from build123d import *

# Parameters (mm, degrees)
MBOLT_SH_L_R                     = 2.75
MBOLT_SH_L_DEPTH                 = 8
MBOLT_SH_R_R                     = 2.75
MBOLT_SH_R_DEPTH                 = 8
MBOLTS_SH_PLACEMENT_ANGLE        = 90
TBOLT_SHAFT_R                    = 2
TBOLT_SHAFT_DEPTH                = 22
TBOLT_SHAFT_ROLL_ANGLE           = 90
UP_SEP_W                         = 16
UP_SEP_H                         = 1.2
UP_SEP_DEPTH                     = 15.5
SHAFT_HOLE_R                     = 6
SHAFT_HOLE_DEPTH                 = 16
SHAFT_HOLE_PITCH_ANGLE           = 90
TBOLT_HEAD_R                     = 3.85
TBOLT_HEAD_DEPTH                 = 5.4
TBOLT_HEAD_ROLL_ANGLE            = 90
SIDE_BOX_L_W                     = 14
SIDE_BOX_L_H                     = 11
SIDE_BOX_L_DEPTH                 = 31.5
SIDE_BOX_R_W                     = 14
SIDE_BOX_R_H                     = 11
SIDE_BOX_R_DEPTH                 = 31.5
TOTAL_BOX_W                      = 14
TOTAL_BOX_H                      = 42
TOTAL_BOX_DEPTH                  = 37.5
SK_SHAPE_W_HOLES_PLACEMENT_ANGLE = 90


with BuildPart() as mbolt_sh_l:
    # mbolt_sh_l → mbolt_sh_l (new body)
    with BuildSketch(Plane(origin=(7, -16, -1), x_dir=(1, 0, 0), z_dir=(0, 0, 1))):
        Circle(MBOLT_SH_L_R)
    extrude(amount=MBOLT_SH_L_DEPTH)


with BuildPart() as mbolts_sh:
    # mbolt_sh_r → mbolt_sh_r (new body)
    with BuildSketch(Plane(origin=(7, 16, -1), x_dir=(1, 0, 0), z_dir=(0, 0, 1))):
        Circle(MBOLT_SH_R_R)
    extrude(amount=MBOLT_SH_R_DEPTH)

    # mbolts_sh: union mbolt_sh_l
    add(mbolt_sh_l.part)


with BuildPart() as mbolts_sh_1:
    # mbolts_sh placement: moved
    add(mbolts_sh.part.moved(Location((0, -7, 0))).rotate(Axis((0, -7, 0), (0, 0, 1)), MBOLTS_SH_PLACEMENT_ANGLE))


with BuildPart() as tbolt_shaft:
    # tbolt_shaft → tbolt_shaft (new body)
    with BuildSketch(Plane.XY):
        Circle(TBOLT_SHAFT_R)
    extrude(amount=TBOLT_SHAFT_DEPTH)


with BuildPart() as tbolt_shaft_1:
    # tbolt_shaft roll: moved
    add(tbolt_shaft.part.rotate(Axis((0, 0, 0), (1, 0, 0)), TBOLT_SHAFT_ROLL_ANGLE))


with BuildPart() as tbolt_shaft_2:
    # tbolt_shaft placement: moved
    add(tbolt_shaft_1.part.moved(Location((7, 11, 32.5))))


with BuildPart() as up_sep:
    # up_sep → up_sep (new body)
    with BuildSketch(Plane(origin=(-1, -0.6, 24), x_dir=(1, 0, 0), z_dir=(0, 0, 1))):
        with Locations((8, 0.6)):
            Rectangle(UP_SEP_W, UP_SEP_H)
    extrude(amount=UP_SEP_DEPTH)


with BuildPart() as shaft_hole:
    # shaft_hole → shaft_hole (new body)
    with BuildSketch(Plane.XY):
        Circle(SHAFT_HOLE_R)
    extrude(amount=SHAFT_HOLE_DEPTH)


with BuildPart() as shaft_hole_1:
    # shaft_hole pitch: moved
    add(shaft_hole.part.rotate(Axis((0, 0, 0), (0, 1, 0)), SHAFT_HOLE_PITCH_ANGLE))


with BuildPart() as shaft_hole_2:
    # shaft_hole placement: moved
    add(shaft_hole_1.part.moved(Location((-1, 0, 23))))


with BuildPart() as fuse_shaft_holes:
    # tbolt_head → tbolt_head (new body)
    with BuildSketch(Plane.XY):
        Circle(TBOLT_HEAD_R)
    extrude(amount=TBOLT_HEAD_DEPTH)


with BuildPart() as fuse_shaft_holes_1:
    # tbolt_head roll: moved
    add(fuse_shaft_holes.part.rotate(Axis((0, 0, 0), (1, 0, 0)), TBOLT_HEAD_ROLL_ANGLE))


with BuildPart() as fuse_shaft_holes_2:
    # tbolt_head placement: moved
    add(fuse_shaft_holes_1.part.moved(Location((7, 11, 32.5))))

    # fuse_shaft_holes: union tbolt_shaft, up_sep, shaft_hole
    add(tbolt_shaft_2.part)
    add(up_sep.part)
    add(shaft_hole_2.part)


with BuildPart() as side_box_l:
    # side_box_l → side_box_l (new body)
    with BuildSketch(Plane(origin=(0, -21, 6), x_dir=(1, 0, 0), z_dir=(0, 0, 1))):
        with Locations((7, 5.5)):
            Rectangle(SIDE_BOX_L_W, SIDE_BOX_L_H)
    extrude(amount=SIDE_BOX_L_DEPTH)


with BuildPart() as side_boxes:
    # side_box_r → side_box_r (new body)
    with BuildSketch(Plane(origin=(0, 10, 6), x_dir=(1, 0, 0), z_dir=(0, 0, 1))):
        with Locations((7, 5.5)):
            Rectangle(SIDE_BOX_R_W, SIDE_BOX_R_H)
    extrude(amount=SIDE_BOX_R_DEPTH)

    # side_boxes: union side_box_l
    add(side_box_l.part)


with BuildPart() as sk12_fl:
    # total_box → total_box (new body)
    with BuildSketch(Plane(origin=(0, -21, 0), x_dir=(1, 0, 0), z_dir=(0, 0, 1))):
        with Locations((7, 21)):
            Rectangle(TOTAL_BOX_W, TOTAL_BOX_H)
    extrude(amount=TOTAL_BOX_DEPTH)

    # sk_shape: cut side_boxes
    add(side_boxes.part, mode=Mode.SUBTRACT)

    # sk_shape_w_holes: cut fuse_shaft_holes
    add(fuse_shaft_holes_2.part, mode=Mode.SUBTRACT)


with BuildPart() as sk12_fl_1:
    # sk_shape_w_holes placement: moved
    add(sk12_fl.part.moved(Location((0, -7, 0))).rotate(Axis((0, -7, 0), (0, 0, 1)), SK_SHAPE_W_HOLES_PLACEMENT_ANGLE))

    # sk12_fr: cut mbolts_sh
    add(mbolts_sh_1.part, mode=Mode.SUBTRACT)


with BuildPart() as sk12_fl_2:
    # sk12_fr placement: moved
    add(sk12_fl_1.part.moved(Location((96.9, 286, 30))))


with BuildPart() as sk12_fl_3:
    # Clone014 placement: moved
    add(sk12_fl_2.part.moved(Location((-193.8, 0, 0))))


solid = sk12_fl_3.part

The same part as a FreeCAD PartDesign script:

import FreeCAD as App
import Part
import Sketcher

V = App.Vector


def add_polygon(sketch, points):
    """Adds a closed chain of lines whose ends are joined by coincident constraints."""
    first, n = sketch.GeometryCount, len(points)
    for a, b in zip(points, points[1:] + points[:1]):
        sketch.addGeometry(Part.LineSegment(App.Vector(*a, 0), App.Vector(*b, 0)), False)
    for i in range(n):
        sketch.addConstraint(Sketcher.Constraint("Coincident", first + i, 2, first + (i + 1) % n, 1))

doc = App.newDocument("Part")
body = doc.addObject("PartDesign::Body", "Body")

sketch1 = body.newObject("Sketcher::SketchObject", "Sketch")
sketch1.AttachmentSupport = (doc.getObject("XY_Plane"), [""])
sketch1.MapMode = "FlatFace"
sketch1.AttachmentOffset = App.Placement(V(0, 0, -1), App.Rotation())
sketch1.addGeometry(Part.Circle(V(7, -16, 0), V(0, 0, 1), 2.8), False)
sketch1.addConstraint([
    Sketcher.Constraint("Diameter", 0, 5.5),
    Sketcher.Constraint("DistanceX", -1, 1, 0, 3, 7.0),
    Sketcher.Constraint("DistanceY", 0, 3, -1, 1, 16.0),
])
pad1 = body.newObject("PartDesign::Pad", "Pad")
pad1.Profile = sketch1
pad1.Length = 8
body2 = doc.addObject("PartDesign::Body", "Body001")
body2.AllowCompound = True

sketch2 = body2.newObject("Sketcher::SketchObject", "Sketch001")
sketch2.AttachmentSupport = (doc.getObject("XY_Plane001"), [""])
sketch2.MapMode = "FlatFace"
sketch2.AttachmentOffset = App.Placement(V(0, 0, -1), App.Rotation())
sketch2.addGeometry(Part.Circle(V(7, 16, 0), V(0, 0, 1), 2.8), False)
sketch2.addConstraint([
    Sketcher.Constraint("Diameter", 0, 5.5),
    Sketcher.Constraint("DistanceX", -1, 1, 0, 3, 7.0),
    Sketcher.Constraint("DistanceY", -1, 1, 0, 3, 16.0),
])
pad2 = body2.newObject("PartDesign::Pad", "Pad001")
pad2.Profile = sketch2
pad2.Length = 8
doc.recompute()

boolean = body2.newObject("PartDesign::Boolean", "Boolean")
boolean.Type = "Fuse"
boolean.addObjects([body])
body3 = doc.addObject("PartDesign::Body", "Body002")
body3.AllowCompound = True
doc.recompute()

body2.Placement = App.Placement(V(0, -7, 0), App.Rotation(V(0, 0, 1), 90))
boolean2 = body3.newObject("PartDesign::Boolean", "Boolean001")
boolean2.Type = "Fuse"
boolean2.addObjects([body2])
body4 = doc.addObject("PartDesign::Body", "Body003")

sketch3 = body4.newObject("Sketcher::SketchObject", "Sketch002")
sketch3.AttachmentSupport = (doc.getObject("XY_Plane003"), [""])
sketch3.MapMode = "FlatFace"
sketch3.addGeometry(Part.Circle(V(0, 0, 0), V(0, 0, 1), 2), False)
sketch3.addConstraint([
    Sketcher.Constraint("Coincident", 0, 3, -1, 1),
    Sketcher.Constraint("Diameter", 0, 4.0),
])
pad3 = body4.newObject("PartDesign::Pad", "Pad002")
pad3.Profile = sketch3
pad3.Length = 22
body5 = doc.addObject("PartDesign::Body", "Body004")
doc.recompute()

body4.Placement = App.Placement(V(0, 0, 0), App.Rotation(V(1, 0, 0), 90))
boolean3 = body5.newObject("PartDesign::Boolean", "Boolean002")
boolean3.Type = "Fuse"
boolean3.addObjects([body4])
body6 = doc.addObject("PartDesign::Body", "Body005")
doc.recompute()

body5.Placement = App.Placement(V(7, 11, 32.5), App.Rotation(V(0, 0, 1), 0))
boolean4 = body6.newObject("PartDesign::Boolean", "Boolean003")
boolean4.Type = "Fuse"
boolean4.addObjects([body5])
body7 = doc.addObject("PartDesign::Body", "Body006")

sketch4 = body7.newObject("Sketcher::SketchObject", "Sketch003")
sketch4.AttachmentSupport = (doc.getObject("XY_Plane006"), [""])
sketch4.MapMode = "FlatFace"
sketch4.AttachmentOffset = App.Placement(V(0, 0, 24), App.Rotation())
add_polygon(sketch4, [(-1, 0.6), (-1, -0.6), (15, -0.6), (15, 0.6)])
sketch4.addConstraint([
    Sketcher.Constraint("Vertical", 0),
    Sketcher.Constraint("Horizontal", 1),
    Sketcher.Constraint("Vertical", 2),
    Sketcher.Constraint("Horizontal", 3),
    Sketcher.Constraint("DistanceX", 1, 1, 1, 2, 16.0),
    Sketcher.Constraint("DistanceY", 0, 2, 0, 1, 1.2),
    Sketcher.Constraint("DistanceX", 0, 2, -1, 1, 1.0),
    Sketcher.Constraint("DistanceY", 0, 2, -1, 1, 0.6),
])
pad4 = body7.newObject("PartDesign::Pad", "Pad003")
pad4.Profile = sketch4
pad4.Length = 15.5
body8 = doc.addObject("PartDesign::Body", "Body007")

sketch5 = body8.newObject("Sketcher::SketchObject", "Sketch004")
sketch5.AttachmentSupport = (doc.getObject("XY_Plane007"), [""])
sketch5.MapMode = "FlatFace"
sketch5.addGeometry(Part.Circle(V(0, 0, 0), V(0, 0, 1), 6), False)
sketch5.addConstraint([
    Sketcher.Constraint("Coincident", 0, 3, -1, 1),
    Sketcher.Constraint("Diameter", 0, 12.0),
])
pad5 = body8.newObject("PartDesign::Pad", "Pad004")
pad5.Profile = sketch5
pad5.Length = 16
body9 = doc.addObject("PartDesign::Body", "Body008")
doc.recompute()

body8.Placement = App.Placement(V(0, 0, 0), App.Rotation(V(0, 1, 0), 90))
boolean5 = body9.newObject("PartDesign::Boolean", "Boolean004")
boolean5.Type = "Fuse"
boolean5.addObjects([body8])
body10 = doc.addObject("PartDesign::Body", "Body009")
doc.recompute()

body9.Placement = App.Placement(V(-1, 0, 23), App.Rotation(V(0, 0, 1), 0))
boolean6 = body10.newObject("PartDesign::Boolean", "Boolean005")
boolean6.Type = "Fuse"
boolean6.addObjects([body9])
body11 = doc.addObject("PartDesign::Body", "Body010")

sketch6 = body11.newObject("Sketcher::SketchObject", "Sketch005")
sketch6.AttachmentSupport = (doc.getObject("XY_Plane010"), [""])
sketch6.MapMode = "FlatFace"
sketch6.addGeometry(Part.Circle(V(0, 0, 0), V(0, 0, 1), 3.9), False)
sketch6.addConstraint([
    Sketcher.Constraint("Coincident", 0, 3, -1, 1),
    Sketcher.Constraint("Diameter", 0, 7.7),
])
pad6 = body11.newObject("PartDesign::Pad", "Pad005")
pad6.Profile = sketch6
pad6.Length = 5.4
body12 = doc.addObject("PartDesign::Body", "Body011")
doc.recompute()

body11.Placement = App.Placement(V(0, 0, 0), App.Rotation(V(1, 0, 0), 90))
boolean7 = body12.newObject("PartDesign::Boolean", "Boolean006")
boolean7.Type = "Fuse"
boolean7.addObjects([body11])
body13 = doc.addObject("PartDesign::Body", "Body012")
doc.recompute()

body12.Placement = App.Placement(V(7, 11, 32.5), App.Rotation(V(0, 0, 1), 0))
boolean8 = body13.newObject("PartDesign::Boolean", "Boolean007")
boolean8.Type = "Fuse"
boolean8.addObjects([body12])
doc.recompute()

boolean9 = body13.newObject("PartDesign::Boolean", "Boolean008")
boolean9.Type = "Fuse"
boolean9.addObjects([body6])
doc.recompute()

boolean10 = body13.newObject("PartDesign::Boolean", "Boolean009")
boolean10.Type = "Fuse"
boolean10.addObjects([body7])
doc.recompute()

boolean11 = body13.newObject("PartDesign::Boolean", "Boolean010")
boolean11.Type = "Fuse"
boolean11.addObjects([body10])
body14 = doc.addObject("PartDesign::Body", "Body013")

sketch7 = body14.newObject("Sketcher::SketchObject", "Sketch006")
sketch7.AttachmentSupport = (doc.getObject("XY_Plane013"), [""])
sketch7.MapMode = "FlatFace"
sketch7.AttachmentOffset = App.Placement(V(0, 0, 6), App.Rotation())
add_polygon(sketch7, [(0, -10), (0, -21), (14, -21), (14, -10)])
sketch7.addConstraint([
    Sketcher.Constraint("Vertical", 0),
    Sketcher.Constraint("Horizontal", 1),
    Sketcher.Constraint("Vertical", 2),
    Sketcher.Constraint("Horizontal", 3),
    Sketcher.Constraint("PointOnObject", 0, 2, -2),
    Sketcher.Constraint("DistanceX", 1, 1, 1, 2, 14.0),
    Sketcher.Constraint("DistanceY", 0, 2, 0, 1, 11.0),
    Sketcher.Constraint("DistanceY", 0, 2, -1, 1, 21.0),
])
pad7 = body14.newObject("PartDesign::Pad", "Pad006")
pad7.Profile = sketch7
pad7.Length = 31.5
body15 = doc.addObject("PartDesign::Body", "Body014")
body15.AllowCompound = True

sketch8 = body15.newObject("Sketcher::SketchObject", "Sketch007")
sketch8.AttachmentSupport = (doc.getObject("XY_Plane014"), [""])
sketch8.MapMode = "FlatFace"
sketch8.AttachmentOffset = App.Placement(V(0, 0, 6), App.Rotation())
add_polygon(sketch8, [(0, 21), (0, 10), (14, 10), (14, 21)])
sketch8.addConstraint([
    Sketcher.Constraint("Vertical", 0),
    Sketcher.Constraint("Horizontal", 1),
    Sketcher.Constraint("Vertical", 2),
    Sketcher.Constraint("Horizontal", 3),
    Sketcher.Constraint("PointOnObject", 0, 2, -2),
    Sketcher.Constraint("DistanceX", 1, 1, 1, 2, 14.0),
    Sketcher.Constraint("DistanceY", 0, 2, 0, 1, 11.0),
    Sketcher.Constraint("DistanceY", -1, 1, 0, 2, 10.0),
])
pad8 = body15.newObject("PartDesign::Pad", "Pad007")
pad8.Profile = sketch8
pad8.Length = 31.5
doc.recompute()

boolean12 = body15.newObject("PartDesign::Boolean", "Boolean011")
boolean12.Type = "Fuse"
boolean12.addObjects([body14])
body16 = doc.addObject("PartDesign::Body", "Body015")

sketch9 = body16.newObject("Sketcher::SketchObject", "Sketch008")
sketch9.AttachmentSupport = (doc.getObject("XY_Plane015"), [""])
sketch9.MapMode = "FlatFace"
add_polygon(sketch9, [(0, 21), (0, -21), (14, -21), (14, 21)])
sketch9.addConstraint([
    Sketcher.Constraint("Vertical", 0),
    Sketcher.Constraint("Horizontal", 1),
    Sketcher.Constraint("Vertical", 2),
    Sketcher.Constraint("Horizontal", 3),
    Sketcher.Constraint("Symmetric", 0, 2, 3, 2, -1, 1),
    Sketcher.Constraint("DistanceX", 1, 1, 1, 2, 14.0),
    Sketcher.Constraint("DistanceY", 0, 2, 0, 1, 42.0),
])
pad9 = body16.newObject("PartDesign::Pad", "Pad008")
pad9.Profile = sketch9
pad9.Length = 37.5
doc.recompute()

boolean13 = body16.newObject("PartDesign::Boolean", "Boolean012")
boolean13.Type = "Cut"
boolean13.addObjects([body15])
doc.recompute()

boolean14 = body16.newObject("PartDesign::Boolean", "Boolean013")
boolean14.Type = "Cut"
boolean14.addObjects([body13])
body17 = doc.addObject("PartDesign::Body", "Body016")
doc.recompute()

body16.Placement = App.Placement(V(0, -7, 0), App.Rotation(V(0, 0, 1), 90))
boolean15 = body17.newObject("PartDesign::Boolean", "Boolean014")
boolean15.Type = "Fuse"
boolean15.addObjects([body16])
doc.recompute()

boolean16 = body17.newObject("PartDesign::Boolean", "Boolean015")
boolean16.Type = "Cut"
boolean16.addObjects([body3])
body18 = doc.addObject("PartDesign::Body", "Body017")
doc.recompute()

body17.Placement = App.Placement(V(96.9, 286, 30), App.Rotation(V(0, 0, 1), 0))
boolean17 = body18.newObject("PartDesign::Boolean", "Boolean016")
boolean17.Type = "Fuse"
boolean17.addObjects([body17])
body19 = doc.addObject("PartDesign::Body", "Body018")
doc.recompute()

body18.Placement = App.Placement(V(-193.8, 0, 0), App.Rotation(V(0, 0, 1), 0))
boolean18 = body19.newObject("PartDesign::Boolean", "Boolean017")
boolean18.Type = "Fuse"
boolean18.addObjects([body18])

doc.recompute()
